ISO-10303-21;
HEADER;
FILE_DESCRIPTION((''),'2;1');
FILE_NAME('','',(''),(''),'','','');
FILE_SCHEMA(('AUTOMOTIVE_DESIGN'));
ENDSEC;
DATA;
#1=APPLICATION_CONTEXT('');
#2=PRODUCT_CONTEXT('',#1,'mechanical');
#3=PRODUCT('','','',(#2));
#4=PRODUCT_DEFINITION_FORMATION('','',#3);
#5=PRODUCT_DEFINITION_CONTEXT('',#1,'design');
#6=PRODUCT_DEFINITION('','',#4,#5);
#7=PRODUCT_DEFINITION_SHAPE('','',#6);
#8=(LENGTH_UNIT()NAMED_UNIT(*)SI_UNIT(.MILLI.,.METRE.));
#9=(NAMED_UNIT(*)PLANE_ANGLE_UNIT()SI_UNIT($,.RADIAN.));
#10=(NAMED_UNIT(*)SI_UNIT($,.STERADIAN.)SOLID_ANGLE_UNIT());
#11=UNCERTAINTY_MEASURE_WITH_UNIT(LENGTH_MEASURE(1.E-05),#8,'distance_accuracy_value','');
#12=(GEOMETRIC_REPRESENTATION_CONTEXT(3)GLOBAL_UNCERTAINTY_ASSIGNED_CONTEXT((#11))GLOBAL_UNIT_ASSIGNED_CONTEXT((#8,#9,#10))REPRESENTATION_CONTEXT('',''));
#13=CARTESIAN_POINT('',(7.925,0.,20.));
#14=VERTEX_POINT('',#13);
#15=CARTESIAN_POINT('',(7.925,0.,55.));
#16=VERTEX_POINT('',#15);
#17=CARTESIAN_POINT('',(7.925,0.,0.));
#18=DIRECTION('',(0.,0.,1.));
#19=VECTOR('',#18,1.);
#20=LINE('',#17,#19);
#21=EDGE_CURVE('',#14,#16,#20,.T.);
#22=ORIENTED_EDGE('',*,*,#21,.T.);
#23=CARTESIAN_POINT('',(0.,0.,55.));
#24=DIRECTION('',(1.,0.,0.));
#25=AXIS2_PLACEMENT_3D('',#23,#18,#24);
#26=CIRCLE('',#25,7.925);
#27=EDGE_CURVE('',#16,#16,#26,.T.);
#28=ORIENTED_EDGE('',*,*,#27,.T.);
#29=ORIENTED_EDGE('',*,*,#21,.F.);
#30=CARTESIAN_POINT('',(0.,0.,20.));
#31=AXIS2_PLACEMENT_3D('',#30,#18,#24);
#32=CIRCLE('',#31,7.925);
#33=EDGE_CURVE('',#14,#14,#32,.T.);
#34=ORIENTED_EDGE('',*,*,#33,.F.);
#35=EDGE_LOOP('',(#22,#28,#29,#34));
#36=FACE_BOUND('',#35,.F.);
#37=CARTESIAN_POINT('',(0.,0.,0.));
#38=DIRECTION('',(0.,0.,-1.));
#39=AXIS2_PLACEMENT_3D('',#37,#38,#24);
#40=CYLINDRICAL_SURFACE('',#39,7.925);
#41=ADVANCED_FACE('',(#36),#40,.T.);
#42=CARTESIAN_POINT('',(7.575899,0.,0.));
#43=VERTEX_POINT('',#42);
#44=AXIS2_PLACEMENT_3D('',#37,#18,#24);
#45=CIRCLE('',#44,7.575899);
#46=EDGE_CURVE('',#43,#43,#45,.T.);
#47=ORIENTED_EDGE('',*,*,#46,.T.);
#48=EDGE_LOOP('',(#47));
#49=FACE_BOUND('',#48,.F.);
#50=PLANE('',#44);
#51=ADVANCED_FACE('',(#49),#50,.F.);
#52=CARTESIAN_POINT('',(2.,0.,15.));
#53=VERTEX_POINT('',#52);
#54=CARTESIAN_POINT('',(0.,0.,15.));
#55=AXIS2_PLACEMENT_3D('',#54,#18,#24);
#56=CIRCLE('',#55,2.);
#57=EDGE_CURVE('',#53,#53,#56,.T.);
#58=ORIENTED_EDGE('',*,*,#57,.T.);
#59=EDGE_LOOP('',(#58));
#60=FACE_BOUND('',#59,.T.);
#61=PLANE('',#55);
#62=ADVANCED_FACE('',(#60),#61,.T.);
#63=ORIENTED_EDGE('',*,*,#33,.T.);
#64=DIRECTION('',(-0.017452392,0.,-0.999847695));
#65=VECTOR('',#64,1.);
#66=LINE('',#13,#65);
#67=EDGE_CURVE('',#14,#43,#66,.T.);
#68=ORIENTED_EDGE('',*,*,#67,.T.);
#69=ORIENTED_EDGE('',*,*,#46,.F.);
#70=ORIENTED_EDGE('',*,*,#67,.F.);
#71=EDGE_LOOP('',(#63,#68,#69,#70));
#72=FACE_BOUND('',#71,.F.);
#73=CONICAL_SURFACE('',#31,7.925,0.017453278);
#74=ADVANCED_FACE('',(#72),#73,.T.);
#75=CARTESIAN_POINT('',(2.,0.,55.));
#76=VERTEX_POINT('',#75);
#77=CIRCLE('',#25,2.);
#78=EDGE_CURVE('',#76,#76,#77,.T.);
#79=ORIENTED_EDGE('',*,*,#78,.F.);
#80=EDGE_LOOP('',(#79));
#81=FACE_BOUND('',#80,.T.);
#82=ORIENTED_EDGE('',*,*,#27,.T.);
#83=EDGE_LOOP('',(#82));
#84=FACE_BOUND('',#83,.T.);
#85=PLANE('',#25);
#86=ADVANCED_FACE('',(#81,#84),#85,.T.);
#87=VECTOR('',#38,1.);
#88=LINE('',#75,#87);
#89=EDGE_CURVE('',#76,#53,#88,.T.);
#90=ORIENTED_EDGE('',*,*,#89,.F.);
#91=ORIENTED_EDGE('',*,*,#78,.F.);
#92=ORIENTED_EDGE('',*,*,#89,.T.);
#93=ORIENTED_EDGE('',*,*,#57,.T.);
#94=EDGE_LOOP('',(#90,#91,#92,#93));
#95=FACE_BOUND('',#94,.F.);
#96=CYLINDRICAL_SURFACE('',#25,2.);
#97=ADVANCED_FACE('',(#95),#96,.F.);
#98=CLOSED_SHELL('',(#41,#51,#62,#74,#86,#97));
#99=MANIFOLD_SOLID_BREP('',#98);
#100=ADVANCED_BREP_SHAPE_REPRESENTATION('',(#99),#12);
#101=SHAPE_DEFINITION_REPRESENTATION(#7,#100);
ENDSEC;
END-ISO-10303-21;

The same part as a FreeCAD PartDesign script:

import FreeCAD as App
import Part
import Sketcher

V = App.Vector
Q = App.Units.Quantity


def edges_at(feature, points):
    """Names of the edges that pass closest to the given points."""
    edges = feature.Shape.Edges
    near = lambda p: min(range(len(edges)), key=lambda i: edges[i].distToShape(Part.Vertex(*p))[0])
    return sorted({f"Edge{near(p) + 1}" for p in points})

doc = App.newDocument("Part")
body = doc.addObject("PartDesign::Body", "Body")

sketch1 = body.newObject("Sketcher::SketchObject", "Sketch")
sketch1.AttachmentSupport = (doc.getObject("XY_Plane"), [""])
sketch1.MapMode = "FlatFace"
sketch1.addGeometry(Part.Circle(V(0, 0, 0), V(0, 0, 1), 7.925), False)
sketch1.addConstraint([
    Sketcher.Constraint("Coincident", 0, 3, -1, 1),
    Sketcher.Constraint("Diameter", 0, Q("15.85 mm")),
])
pad1 = body.newObject("PartDesign::Pad", "Pad")
pad1.Profile = sketch1
pad1.Length = 55
doc.recompute()

chamfer = body.newObject("PartDesign::Chamfer", "Chamfer")
chamfer.Base = (pad1, edges_at(pad1, [(-7.925, 0, 0)]))
chamfer.ChamferType = "Two distances"
chamfer.Size = 20
chamfer.Size2 = 0.349101

sketch2 = body.newObject("Sketcher::SketchObject", "Sketch001")
sketch2.AttachmentSupport = (doc.getObject("XY_Plane"), [""])
sketch2.MapMode = "FlatFace"
sketch2.AttachmentOffset = App.Placement(V(0, 0, 55), App.Rotation())
sketch2.addGeometry(Part.Circle(V(0, 0, 0), V(0, 0, 1), 2), False)
sketch2.addConstraint([
    Sketcher.Constraint("Coincident", 0, 3, -1, 1),
    Sketcher.Constraint("Diameter", 0, Q("4 mm")),
])
pocket1 = body.newObject("PartDesign::Pocket", "Pocket")
pocket1.Profile = sketch2
pocket1.Length = 40

doc.recompute()
